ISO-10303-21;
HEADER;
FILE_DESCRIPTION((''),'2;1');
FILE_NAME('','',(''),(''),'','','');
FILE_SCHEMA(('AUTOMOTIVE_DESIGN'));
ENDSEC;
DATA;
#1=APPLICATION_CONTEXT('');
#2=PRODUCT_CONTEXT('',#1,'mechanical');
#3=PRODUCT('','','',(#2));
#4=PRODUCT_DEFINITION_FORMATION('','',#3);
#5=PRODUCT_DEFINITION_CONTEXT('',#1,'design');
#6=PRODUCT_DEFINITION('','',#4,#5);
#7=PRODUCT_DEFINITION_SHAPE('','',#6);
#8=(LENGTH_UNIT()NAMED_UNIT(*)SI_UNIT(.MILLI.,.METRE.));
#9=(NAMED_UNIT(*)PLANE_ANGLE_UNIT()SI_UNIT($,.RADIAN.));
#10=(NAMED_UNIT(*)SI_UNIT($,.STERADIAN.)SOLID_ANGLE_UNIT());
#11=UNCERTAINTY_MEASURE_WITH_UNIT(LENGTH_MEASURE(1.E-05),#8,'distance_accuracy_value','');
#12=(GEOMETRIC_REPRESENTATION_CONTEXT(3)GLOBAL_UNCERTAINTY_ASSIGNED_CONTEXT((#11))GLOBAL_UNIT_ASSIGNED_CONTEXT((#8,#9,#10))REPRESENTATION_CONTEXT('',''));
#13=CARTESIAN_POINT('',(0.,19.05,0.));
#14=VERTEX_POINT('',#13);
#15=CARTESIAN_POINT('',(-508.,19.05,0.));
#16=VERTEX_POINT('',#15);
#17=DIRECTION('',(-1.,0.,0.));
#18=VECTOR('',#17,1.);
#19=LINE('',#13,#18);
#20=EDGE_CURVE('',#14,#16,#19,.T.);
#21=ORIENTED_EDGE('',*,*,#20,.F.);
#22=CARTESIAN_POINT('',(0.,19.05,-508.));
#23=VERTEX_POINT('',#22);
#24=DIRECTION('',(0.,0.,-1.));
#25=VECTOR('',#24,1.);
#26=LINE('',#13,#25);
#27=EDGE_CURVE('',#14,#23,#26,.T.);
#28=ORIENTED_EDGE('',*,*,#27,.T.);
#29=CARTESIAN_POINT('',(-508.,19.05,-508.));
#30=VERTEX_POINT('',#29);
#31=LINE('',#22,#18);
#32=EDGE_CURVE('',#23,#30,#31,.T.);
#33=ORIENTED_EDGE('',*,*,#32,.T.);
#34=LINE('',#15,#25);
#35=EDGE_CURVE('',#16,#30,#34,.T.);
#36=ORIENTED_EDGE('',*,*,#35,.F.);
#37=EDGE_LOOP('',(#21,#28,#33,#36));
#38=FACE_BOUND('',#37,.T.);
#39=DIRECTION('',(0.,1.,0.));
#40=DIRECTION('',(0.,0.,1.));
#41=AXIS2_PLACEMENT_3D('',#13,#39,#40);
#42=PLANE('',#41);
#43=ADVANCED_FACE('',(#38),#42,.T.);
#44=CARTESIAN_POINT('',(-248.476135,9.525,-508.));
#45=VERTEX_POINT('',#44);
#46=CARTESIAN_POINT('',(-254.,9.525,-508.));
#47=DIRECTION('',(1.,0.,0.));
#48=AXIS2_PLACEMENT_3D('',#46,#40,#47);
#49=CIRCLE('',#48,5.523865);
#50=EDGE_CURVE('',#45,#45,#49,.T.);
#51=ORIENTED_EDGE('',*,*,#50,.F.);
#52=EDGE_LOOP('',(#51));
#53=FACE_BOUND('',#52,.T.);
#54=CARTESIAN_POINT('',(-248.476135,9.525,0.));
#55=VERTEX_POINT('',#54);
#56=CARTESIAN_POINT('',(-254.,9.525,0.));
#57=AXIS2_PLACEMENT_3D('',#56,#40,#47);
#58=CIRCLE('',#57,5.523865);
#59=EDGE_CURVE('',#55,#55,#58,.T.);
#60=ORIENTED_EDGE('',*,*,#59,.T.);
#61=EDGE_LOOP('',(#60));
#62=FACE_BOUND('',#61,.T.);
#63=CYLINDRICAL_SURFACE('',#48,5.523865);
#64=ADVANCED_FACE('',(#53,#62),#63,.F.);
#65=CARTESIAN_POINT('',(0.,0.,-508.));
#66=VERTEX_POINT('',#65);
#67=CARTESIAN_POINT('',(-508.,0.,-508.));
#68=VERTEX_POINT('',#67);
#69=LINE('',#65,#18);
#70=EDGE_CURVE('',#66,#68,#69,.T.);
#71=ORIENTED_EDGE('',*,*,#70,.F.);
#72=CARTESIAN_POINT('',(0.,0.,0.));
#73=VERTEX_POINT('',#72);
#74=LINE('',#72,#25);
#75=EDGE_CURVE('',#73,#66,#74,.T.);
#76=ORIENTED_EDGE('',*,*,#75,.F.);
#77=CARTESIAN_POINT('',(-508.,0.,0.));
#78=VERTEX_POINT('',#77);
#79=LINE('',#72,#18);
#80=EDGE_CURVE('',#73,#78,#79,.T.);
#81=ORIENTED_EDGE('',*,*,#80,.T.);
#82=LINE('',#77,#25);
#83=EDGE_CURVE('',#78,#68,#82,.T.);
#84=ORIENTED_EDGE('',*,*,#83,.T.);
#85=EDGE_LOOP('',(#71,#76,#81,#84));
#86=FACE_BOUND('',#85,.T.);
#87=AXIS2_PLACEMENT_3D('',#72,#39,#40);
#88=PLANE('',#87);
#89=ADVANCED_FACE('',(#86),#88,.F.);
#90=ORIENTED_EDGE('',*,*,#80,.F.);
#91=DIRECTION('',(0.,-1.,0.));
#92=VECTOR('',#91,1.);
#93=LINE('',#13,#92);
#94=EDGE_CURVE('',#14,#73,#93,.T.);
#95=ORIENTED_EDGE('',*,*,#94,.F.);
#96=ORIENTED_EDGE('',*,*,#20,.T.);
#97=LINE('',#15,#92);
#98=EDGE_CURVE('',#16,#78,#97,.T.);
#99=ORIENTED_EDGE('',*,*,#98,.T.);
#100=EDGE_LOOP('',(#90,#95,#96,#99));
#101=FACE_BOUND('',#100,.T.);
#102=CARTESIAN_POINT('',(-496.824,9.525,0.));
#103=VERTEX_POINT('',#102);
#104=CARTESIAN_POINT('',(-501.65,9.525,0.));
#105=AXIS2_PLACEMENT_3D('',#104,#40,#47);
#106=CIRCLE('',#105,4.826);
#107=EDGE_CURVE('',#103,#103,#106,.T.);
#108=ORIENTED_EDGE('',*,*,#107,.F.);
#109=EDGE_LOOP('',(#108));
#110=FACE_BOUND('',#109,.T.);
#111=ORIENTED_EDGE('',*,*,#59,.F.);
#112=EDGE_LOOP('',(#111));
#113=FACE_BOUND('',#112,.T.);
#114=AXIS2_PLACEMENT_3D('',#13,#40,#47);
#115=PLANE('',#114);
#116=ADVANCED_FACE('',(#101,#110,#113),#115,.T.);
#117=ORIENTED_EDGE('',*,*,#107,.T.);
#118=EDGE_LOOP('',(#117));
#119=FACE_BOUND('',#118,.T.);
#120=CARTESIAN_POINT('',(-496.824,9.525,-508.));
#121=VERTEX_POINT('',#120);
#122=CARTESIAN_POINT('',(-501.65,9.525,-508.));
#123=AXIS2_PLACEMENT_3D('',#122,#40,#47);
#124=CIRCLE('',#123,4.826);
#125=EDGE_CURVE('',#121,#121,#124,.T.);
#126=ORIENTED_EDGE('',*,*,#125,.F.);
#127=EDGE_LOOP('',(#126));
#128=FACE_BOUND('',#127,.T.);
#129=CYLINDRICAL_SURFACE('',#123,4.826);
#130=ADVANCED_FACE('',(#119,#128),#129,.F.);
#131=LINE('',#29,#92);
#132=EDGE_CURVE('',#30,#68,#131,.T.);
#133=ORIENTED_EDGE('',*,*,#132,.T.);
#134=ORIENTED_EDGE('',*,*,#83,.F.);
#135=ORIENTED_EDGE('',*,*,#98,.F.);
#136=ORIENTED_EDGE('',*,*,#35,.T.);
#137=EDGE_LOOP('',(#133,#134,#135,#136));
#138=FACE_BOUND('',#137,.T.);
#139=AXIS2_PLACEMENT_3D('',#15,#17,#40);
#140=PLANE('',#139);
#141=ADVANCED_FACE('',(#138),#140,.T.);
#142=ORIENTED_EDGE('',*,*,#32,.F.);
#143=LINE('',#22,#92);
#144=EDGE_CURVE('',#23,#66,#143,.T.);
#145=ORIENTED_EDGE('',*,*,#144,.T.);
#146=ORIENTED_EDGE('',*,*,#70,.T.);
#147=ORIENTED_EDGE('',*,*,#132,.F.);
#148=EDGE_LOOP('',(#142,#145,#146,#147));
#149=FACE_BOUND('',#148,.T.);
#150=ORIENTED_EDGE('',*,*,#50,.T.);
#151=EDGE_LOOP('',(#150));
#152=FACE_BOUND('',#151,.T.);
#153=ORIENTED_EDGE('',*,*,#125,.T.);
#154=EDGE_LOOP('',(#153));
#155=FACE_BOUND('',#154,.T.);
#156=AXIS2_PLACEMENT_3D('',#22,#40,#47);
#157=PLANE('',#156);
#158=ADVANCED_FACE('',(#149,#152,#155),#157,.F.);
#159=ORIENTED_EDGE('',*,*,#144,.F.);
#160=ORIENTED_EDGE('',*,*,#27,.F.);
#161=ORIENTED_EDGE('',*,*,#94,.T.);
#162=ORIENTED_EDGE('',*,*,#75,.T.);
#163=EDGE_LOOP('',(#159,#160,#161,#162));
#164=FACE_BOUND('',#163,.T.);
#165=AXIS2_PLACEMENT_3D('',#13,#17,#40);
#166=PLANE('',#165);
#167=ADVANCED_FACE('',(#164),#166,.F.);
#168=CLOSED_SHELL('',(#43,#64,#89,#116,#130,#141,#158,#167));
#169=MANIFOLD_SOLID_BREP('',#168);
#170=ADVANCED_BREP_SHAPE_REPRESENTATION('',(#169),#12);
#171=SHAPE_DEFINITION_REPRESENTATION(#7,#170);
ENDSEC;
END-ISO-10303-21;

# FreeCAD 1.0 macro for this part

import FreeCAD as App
import Part
import Sketcher

V = App.Vector
Q = App.Units.Quantity

doc = App.newDocument("Part")
params = doc.addObject("Spreadsheet::Sheet", "Params")
for row, (alias, value) in enumerate([
    ("sketch1_width", "20 in"),
    ("pad1_length", "0.75 in"),
    ("sketch2_diameter", "0.38 in"),
], start=1):
    params.set(f"A{row}", alias)
    params.set(f"B{row}", "=" + value)
    params.setAlias(f"B{row}", alias)

body = doc.addObject("PartDesign::Body", "Body")

# Sketch on XZ plane
sketch1 = body.newObject("Sketcher::SketchObject", "Sketch")
sketch1.AttachmentSupport = (doc.getObject("XZ_Plane"), [""])
sketch1.MapMode = "FlatFace"
sketch1.addGeometry(Part.LineSegment(V(-508, -508, 0), V(-508, 0, 0)), False)
sketch1.addGeometry(Part.LineSegment(V(-508, 0, 0), V(0, 0, 0)), False)
sketch1.addGeometry(Part.LineSegment(V(0, 0, 0), V(0, -508, 0)), False)
sketch1.addGeometry(Part.LineSegment(V(0, -508, 0), V(-508, -508, 0)), False)
sketch1.addConstraint(Sketcher.Constraint("Coincident", 0, 2, 1, 1))
sketch1.addConstraint(Sketcher.Constraint("Coincident", 1, 2, 2, 1))
sketch1.addConstraint(Sketcher.Constraint("Coincident", 2, 2, 3, 1))
sketch1.addConstraint(Sketcher.Constraint("Coincident", 3, 2, 0, 1))
sketch1.addConstraint(Sketcher.Constraint("Vertical", 0))
sketch1.addConstraint(Sketcher.Constraint("Horizontal", 1))
sketch1.addConstraint(Sketcher.Constraint("Vertical", 2))
sketch1.addConstraint(Sketcher.Constraint("Horizontal", 3))
sketch1.addConstraint(Sketcher.Constraint("Coincident", 1, 2, -1, 1))
sketch1.addConstraint(Sketcher.Constraint("Equal", 3, 0))
sketch1.addConstraint(Sketcher.Constraint("DistanceX", 1, 1, 1, 2, Q("20 in")))
sketch1.setExpression("Constraints[10]", "Params.sketch1_width")
pad1 = body.newObject("PartDesign::Pad", "Pad")
pad1.Profile = sketch1
pad1.setExpression("Length", "Params.pad1_length")
pad1.Reversed = True

# Sketch on XY plane
sketch2 = body.newObject("Sketcher::SketchObject", "Sketch001")
sketch2.AttachmentSupport = (doc.getObject("XY_Plane"), [""])
sketch2.MapMode = "FlatFace"
sketch2.addGeometry(Part.Circle(V(-254, 9.5, 0), V(0, 0, 1), 5.5), False)
sketch2.addGeometry(Part.Circle(V(-501.6, 9.5, 0), V(0, 0, 1), 4.8), False)
sketch2.addConstraint(Sketcher.Constraint("Horizontal", 0, 3, 1, 3))
sketch2.addConstraint(Sketcher.Constraint("Diameter", 1, Q("0.38 in")))
sketch2.addConstraint(Sketcher.Constraint("DistanceX", 0, 3, -1, 1, Q("10 in")))
sketch2.addConstraint(Sketcher.Constraint("DistanceX", 1, 3, -1, 1, Q("19.75 in")))
sketch2.addConstraint(Sketcher.Constraint("Diameter", 0, 11.047729))
sketch2.addConstraint(Sketcher.Constraint("DistanceY", -1, 1, 0, 3, Q("0.375 in")))
sketch2.setExpression("Constraints[1]", "Params.sketch2_diameter")
pocket1 = body.newObject("PartDesign::Pocket", "Pocket")
pocket1.Profile = sketch2
pocket1.Type = "ThroughAll"

doc.recompute()
